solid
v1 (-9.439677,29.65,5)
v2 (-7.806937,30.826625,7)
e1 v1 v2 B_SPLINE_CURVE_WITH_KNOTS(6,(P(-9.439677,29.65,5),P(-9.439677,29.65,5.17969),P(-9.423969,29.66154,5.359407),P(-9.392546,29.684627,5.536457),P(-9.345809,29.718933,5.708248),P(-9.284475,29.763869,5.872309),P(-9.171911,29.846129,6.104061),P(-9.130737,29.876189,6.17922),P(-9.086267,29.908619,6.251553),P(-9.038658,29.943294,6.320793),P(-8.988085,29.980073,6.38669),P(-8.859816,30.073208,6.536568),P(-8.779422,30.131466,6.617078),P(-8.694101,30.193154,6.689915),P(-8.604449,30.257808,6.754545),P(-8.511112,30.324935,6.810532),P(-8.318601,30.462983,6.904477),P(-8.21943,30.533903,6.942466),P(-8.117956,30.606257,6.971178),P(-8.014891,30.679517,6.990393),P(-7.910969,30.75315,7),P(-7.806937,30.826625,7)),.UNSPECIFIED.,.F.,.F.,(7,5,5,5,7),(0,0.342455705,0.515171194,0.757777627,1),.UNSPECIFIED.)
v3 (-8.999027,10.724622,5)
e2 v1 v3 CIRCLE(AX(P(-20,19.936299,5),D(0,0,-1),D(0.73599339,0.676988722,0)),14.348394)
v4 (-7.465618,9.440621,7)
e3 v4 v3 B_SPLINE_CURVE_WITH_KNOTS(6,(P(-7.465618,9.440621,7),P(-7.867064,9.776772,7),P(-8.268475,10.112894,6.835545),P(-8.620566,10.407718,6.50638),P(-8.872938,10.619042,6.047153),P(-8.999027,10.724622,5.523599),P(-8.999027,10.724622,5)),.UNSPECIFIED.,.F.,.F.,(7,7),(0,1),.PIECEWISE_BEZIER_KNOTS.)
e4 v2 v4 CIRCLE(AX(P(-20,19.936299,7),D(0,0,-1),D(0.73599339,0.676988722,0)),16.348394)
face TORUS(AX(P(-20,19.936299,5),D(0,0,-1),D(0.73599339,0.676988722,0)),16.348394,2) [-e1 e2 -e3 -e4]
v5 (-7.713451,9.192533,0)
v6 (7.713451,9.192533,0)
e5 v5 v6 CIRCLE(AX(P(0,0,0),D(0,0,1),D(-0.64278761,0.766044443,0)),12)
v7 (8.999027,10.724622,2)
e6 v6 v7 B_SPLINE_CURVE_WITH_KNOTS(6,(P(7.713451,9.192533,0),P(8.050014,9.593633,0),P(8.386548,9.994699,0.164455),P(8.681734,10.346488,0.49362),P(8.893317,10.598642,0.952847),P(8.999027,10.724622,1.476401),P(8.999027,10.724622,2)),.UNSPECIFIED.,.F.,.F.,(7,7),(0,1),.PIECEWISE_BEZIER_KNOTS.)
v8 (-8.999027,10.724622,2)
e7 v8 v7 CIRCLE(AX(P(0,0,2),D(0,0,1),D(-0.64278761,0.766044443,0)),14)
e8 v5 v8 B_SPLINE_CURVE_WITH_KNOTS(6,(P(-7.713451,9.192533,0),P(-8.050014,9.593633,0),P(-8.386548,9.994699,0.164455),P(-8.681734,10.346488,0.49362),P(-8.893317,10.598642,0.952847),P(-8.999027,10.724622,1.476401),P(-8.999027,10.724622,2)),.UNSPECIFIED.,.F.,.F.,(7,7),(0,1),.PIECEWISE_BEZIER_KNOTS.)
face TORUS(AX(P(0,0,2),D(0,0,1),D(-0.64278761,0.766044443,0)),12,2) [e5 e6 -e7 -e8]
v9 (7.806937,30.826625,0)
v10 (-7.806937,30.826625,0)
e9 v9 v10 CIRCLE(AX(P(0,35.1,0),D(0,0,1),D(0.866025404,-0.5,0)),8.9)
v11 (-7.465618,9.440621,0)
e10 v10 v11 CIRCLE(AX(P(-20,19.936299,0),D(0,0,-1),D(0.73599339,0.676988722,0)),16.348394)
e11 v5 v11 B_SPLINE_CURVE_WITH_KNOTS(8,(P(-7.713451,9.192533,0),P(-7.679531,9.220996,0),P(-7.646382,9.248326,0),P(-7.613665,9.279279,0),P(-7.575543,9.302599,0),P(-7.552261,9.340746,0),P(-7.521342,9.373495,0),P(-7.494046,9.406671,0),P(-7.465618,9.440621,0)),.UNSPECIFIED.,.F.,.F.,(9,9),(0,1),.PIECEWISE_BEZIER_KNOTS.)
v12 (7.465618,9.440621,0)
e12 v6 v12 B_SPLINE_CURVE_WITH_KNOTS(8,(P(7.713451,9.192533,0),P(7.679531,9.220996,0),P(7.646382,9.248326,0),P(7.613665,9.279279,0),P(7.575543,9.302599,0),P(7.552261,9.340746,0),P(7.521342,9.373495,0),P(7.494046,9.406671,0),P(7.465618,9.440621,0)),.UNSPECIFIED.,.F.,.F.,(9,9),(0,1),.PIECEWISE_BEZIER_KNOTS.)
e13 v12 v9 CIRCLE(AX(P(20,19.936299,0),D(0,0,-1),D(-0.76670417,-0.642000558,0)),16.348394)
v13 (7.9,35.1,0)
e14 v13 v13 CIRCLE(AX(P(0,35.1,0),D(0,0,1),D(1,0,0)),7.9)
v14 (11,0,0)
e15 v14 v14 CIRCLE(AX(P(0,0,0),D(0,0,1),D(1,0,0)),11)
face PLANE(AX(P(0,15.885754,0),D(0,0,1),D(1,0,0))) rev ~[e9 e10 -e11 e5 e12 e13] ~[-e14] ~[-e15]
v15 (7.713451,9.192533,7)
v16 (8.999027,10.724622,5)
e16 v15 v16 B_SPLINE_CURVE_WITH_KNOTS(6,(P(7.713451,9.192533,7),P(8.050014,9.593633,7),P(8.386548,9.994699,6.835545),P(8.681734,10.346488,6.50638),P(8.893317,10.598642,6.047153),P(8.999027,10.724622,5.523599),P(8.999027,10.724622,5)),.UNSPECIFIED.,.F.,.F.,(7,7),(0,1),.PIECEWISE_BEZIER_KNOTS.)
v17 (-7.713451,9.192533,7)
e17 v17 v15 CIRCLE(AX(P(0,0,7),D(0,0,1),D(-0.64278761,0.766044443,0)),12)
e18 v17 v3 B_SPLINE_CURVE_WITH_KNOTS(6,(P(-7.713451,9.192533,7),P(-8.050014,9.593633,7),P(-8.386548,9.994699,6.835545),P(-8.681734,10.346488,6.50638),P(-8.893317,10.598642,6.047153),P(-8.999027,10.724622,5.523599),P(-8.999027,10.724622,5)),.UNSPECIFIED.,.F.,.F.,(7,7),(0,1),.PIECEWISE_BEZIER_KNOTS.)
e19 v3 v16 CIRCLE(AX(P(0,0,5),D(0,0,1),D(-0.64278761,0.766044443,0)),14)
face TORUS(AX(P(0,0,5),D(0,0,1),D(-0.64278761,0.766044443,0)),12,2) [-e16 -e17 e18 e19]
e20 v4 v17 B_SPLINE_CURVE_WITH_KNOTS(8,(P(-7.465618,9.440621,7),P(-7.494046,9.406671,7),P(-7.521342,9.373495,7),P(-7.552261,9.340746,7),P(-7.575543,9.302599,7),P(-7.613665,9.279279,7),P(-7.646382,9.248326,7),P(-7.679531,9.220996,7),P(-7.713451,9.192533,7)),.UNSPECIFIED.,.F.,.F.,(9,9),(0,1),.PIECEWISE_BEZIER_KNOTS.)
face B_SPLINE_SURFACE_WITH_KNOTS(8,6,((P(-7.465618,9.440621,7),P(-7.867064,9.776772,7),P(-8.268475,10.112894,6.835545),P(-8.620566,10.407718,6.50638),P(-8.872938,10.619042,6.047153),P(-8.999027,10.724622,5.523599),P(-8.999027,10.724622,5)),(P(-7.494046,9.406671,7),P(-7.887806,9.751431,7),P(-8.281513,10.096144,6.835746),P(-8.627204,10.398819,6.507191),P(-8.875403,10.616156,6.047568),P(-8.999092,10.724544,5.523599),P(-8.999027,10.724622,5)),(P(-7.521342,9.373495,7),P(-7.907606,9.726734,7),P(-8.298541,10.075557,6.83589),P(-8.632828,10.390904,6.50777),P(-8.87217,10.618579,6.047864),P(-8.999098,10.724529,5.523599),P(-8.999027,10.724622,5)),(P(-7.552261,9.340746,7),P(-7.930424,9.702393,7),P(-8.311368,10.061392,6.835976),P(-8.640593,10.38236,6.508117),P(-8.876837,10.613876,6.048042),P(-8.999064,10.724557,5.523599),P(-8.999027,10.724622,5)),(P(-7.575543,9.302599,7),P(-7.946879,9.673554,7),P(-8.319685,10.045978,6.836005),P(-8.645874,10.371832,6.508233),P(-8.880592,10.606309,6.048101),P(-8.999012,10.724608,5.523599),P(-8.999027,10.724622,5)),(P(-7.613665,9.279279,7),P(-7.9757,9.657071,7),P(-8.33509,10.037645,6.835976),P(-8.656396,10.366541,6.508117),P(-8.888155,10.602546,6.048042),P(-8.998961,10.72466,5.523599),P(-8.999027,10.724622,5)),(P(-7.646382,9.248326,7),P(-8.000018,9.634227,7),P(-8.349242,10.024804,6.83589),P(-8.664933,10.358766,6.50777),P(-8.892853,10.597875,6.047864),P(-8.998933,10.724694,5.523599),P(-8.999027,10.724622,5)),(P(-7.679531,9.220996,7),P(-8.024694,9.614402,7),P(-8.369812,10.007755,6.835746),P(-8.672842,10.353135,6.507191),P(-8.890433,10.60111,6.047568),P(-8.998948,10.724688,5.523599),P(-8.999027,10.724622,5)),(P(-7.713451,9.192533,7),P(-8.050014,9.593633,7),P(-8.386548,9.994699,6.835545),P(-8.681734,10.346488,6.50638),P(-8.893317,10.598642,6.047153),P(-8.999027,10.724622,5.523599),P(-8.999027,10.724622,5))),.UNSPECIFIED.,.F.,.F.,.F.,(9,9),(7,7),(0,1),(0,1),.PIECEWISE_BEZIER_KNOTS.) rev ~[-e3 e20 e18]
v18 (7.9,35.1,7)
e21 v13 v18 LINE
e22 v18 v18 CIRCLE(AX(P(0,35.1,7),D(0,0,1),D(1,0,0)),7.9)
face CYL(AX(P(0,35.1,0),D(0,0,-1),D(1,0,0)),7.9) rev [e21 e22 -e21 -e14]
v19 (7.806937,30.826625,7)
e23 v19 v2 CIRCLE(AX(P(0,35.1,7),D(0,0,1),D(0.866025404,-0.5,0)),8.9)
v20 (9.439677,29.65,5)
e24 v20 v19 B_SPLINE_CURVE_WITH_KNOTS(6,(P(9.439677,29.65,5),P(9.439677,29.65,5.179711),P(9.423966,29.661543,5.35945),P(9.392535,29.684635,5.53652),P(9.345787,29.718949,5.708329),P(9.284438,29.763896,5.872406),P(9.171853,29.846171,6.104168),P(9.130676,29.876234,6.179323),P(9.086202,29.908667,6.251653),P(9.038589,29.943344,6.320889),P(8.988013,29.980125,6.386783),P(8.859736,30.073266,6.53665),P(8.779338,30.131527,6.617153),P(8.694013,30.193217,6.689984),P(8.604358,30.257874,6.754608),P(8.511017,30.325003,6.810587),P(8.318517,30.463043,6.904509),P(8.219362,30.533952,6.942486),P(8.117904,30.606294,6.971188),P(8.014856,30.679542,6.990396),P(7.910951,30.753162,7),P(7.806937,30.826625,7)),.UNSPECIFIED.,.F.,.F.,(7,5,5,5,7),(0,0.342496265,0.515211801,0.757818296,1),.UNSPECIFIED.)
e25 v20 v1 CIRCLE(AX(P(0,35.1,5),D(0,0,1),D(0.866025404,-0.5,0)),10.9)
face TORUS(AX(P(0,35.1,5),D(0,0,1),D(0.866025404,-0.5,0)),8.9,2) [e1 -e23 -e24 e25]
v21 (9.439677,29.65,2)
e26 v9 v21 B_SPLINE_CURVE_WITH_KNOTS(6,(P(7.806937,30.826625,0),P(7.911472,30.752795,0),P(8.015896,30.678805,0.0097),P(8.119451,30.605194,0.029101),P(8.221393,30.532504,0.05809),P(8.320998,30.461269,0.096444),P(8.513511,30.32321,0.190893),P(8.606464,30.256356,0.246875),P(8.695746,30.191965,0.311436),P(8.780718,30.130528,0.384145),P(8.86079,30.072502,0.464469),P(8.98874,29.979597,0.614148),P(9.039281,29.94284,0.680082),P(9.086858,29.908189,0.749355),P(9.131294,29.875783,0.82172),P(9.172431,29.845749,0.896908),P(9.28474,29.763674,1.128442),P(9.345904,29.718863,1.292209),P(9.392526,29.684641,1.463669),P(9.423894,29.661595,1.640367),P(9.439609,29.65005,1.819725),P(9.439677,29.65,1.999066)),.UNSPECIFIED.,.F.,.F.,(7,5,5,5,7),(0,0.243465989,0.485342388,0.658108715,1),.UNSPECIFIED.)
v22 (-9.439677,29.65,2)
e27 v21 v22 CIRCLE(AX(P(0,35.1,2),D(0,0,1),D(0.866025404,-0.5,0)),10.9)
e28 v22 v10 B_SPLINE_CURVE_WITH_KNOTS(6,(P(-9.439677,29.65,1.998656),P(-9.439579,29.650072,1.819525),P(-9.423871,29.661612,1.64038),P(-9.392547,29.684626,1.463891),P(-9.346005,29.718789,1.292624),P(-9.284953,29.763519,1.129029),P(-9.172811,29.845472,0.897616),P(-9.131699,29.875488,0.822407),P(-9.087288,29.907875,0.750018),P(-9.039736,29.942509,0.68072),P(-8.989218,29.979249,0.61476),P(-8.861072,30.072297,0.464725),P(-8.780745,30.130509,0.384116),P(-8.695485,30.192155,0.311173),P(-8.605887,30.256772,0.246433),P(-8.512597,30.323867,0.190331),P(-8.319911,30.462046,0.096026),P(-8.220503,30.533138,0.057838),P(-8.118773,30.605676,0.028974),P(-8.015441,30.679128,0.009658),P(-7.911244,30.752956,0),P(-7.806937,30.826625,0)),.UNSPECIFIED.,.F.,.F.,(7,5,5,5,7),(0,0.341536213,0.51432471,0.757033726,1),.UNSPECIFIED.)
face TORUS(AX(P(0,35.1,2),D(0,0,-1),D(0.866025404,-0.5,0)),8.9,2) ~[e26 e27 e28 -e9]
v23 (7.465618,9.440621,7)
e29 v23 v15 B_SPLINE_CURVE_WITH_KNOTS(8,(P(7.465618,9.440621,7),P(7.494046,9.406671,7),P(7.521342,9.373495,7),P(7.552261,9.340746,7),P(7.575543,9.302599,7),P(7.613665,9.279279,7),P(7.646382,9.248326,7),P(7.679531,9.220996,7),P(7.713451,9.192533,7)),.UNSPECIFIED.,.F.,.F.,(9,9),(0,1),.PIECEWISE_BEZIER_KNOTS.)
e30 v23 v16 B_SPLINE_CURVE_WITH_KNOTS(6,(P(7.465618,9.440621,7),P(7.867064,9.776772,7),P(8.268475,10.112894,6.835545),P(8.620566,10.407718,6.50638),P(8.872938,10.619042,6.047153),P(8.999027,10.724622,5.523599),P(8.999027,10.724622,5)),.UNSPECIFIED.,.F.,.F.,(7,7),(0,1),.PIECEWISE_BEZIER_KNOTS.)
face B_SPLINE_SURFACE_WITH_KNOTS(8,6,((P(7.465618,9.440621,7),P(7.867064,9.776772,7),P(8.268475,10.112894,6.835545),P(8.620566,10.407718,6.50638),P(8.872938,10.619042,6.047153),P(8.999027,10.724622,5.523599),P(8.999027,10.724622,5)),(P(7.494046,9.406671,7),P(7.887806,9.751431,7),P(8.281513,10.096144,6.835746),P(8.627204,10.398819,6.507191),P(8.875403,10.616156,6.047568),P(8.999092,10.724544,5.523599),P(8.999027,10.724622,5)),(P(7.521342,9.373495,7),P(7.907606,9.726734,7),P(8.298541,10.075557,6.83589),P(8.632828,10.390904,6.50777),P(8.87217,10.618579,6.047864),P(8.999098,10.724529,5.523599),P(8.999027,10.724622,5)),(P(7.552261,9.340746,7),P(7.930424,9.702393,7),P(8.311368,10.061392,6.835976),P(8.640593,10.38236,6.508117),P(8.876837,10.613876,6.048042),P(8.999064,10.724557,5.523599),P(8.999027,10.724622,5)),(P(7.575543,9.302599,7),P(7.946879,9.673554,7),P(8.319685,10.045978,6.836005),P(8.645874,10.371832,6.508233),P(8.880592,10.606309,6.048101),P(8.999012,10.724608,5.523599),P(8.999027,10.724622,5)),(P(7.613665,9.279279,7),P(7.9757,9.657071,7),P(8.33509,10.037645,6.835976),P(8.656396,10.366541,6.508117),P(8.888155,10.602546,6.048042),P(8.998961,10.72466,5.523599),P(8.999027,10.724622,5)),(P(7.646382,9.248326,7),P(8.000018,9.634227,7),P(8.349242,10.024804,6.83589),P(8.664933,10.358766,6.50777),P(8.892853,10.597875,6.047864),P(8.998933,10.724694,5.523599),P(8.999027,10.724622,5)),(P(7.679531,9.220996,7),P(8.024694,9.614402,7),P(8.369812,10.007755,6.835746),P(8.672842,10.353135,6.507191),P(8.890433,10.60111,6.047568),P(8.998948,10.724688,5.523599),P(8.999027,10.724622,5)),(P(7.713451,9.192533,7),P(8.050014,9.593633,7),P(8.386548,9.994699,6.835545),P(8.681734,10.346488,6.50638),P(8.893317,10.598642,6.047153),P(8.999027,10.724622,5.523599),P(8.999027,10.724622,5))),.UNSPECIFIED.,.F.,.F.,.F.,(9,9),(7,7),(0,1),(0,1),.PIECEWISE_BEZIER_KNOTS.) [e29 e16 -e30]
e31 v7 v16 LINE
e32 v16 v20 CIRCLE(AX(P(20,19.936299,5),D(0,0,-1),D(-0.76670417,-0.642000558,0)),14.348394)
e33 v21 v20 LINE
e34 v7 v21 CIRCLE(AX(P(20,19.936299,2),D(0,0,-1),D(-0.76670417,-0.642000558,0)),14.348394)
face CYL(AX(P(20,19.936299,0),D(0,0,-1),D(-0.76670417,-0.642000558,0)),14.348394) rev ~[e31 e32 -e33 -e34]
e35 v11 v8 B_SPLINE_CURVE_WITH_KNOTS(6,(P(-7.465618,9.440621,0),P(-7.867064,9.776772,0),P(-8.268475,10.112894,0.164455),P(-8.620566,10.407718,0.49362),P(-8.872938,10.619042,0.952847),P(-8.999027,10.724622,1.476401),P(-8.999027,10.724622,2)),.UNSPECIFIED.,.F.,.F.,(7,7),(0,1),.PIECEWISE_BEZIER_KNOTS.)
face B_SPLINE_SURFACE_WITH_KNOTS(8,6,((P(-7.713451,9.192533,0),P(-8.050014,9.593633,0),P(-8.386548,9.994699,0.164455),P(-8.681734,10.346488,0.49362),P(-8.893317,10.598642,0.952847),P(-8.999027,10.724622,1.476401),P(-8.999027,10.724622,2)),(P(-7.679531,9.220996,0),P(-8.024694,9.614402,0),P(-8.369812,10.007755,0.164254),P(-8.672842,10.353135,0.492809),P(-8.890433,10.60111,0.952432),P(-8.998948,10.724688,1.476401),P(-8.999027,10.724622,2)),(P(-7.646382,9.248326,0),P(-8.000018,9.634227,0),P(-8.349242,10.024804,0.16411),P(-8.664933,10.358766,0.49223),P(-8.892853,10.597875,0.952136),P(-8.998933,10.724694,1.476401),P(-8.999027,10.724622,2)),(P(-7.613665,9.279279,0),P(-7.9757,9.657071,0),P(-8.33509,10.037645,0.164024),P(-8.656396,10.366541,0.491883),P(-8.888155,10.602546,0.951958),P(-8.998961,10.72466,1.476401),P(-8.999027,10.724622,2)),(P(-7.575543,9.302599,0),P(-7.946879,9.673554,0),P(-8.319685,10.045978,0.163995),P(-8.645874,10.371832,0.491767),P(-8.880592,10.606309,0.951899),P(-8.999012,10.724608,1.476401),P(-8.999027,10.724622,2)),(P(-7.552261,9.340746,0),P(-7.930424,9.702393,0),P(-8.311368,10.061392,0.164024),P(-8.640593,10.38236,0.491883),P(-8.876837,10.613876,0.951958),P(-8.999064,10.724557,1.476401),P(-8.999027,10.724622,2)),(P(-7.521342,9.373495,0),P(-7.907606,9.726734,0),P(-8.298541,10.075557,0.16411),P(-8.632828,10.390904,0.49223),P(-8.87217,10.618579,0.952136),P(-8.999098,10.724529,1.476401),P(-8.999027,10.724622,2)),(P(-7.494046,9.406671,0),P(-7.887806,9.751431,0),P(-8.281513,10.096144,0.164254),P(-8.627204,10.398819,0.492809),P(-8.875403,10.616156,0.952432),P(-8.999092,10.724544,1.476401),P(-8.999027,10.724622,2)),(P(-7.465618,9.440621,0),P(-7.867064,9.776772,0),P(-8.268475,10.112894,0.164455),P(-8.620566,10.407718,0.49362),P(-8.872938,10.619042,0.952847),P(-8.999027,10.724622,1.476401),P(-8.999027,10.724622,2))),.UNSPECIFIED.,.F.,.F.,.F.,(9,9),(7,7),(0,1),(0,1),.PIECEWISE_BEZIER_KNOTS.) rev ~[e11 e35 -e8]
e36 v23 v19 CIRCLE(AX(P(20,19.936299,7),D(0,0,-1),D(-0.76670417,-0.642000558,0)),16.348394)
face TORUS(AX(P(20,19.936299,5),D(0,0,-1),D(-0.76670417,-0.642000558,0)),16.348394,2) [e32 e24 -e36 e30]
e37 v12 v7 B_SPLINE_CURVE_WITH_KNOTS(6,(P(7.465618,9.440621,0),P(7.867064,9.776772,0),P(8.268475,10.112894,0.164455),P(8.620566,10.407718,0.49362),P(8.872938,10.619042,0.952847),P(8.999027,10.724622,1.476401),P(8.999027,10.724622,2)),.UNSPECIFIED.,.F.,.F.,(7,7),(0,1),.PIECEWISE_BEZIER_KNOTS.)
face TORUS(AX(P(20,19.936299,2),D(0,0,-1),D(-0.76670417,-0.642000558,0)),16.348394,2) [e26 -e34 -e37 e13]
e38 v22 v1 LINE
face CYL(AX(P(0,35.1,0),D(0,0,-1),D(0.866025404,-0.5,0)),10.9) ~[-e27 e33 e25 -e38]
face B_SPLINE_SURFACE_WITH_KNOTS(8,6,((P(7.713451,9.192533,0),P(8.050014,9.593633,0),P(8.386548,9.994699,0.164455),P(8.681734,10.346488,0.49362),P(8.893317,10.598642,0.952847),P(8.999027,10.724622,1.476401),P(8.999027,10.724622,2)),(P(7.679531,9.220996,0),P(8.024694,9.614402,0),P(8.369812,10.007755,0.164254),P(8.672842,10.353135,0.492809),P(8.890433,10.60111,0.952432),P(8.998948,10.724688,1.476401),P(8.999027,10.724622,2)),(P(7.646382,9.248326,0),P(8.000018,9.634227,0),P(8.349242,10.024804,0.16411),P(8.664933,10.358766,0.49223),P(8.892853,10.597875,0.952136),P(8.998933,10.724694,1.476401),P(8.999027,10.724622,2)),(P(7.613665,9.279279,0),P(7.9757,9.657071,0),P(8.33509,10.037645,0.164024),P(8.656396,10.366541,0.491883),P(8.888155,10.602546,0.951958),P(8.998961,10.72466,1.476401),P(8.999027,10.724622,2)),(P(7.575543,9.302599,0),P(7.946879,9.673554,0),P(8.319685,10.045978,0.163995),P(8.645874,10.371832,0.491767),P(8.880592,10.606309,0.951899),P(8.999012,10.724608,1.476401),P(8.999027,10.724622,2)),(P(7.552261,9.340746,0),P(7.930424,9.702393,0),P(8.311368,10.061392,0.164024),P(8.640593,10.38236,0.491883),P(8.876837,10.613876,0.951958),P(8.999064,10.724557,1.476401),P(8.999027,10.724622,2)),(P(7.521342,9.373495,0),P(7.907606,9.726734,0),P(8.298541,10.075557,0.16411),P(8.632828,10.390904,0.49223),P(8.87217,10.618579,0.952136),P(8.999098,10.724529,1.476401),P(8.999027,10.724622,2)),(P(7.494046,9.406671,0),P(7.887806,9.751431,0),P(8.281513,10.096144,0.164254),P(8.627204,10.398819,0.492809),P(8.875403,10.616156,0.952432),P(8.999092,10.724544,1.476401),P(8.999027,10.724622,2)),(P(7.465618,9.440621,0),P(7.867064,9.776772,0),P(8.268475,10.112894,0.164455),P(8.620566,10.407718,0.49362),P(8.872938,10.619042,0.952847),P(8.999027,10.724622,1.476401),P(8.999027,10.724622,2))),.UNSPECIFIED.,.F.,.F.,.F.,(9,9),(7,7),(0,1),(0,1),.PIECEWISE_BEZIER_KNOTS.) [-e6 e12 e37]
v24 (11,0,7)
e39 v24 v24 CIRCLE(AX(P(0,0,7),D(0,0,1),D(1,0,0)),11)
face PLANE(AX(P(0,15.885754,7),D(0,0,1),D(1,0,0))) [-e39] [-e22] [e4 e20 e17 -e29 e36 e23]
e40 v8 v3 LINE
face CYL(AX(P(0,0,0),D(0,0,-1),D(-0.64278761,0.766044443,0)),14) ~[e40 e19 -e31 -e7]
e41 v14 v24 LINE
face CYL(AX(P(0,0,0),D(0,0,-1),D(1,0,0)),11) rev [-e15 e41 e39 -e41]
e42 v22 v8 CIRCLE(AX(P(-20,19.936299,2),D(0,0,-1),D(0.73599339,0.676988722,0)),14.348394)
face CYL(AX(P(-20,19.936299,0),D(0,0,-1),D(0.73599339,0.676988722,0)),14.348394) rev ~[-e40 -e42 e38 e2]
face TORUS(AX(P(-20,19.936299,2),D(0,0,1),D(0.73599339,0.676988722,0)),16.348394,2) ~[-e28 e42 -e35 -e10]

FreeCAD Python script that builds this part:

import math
import FreeCAD as App
import Part
import Sketcher
from FreeCAD import Vector
Q = App.Units.Quantity


def edges_at(feature, points):
    """Names of the edges that pass closest to the given points."""
    edges = feature.Shape.Edges
    near = lambda p: min(range(len(edges)), key=lambda i: edges[i].distToShape(Part.Vertex(*p))[0])
    return sorted({f"Edge{near(p) + 1}" for p in points})

doc = App.newDocument("Part")
params = doc.addObject("Spreadsheet::Sheet", "Params")
for row, (alias, value) in enumerate([
    ("sketch1_diameter", "22 mm"),
    ("sketch1_radius", "14 mm"),
    ("sketch1_diameter2", "15.8 mm"),
    ("sketch1_radius2", "10.9 mm"),
    ("pad1_length", "7 mm"),
    ("fillet_radius", "2 mm"),
    ("fillet2_radius", "2 mm"),
], start=1):
    params.set(f"A{row}", alias)
    params.set(f"B{row}", "=" + value)
    params.setAlias(f"B{row}", alias)

body = doc.addObject("PartDesign::Body", "Body")

# Sketch on XY plane
sketch1 = body.newObject("Sketcher::SketchObject", "Sketch")
sketch1.AttachmentSupport = (doc.getObject("XY_Plane"), [""])
sketch1.MapMode = "FlatFace"
sketch1.addGeometry(Part.ArcOfCircle(Part.Circle(Vector(-20, 19.936299, 0), Vector(0, 0, 1), 14.348394), math.radians(-39.941158), math.radians(42.608777)), False)
sketch1.addGeometry(Part.ArcOfCircle(Part.Circle(Vector(0, 0, 0), Vector(0, 0, 1), 14), math.radians(130), math.radians(410)), False)
sketch1.addGeometry(Part.ArcOfCircle(Part.Circle(Vector(20, 19.936299, 0), Vector(0, 0, 1), 14.348394), math.radians(137.391223), math.radians(219.941158)), False)
sketch1.addGeometry(Part.ArcOfCircle(Part.Circle(Vector(0, 35.1, 0), Vector(0, 0, 1), 10.9), math.radians(-30), math.radians(210)), False)
sketch1.addGeometry(Part.Circle(Vector(0, 0, 0), Vector(0, 0, 1), 11), False)
sketch1.addGeometry(Part.Circle(Vector(0, 35.1, 0), Vector(0, 0, 1), 7.9), False)
sketch1.addConstraint(Sketcher.Constraint("Coincident", 0, 1, 1, 1))
sketch1.addConstraint(Sketcher.Constraint("Coincident", 1, 2, 2, 2))
sketch1.addConstraint(Sketcher.Constraint("Coincident", 2, 1, 3, 1))
sketch1.addConstraint(Sketcher.Constraint("Coincident", 3, 2, 0, 2))
sketch1.addConstraint(Sketcher.Constraint("Coincident", 1, 3, -1, 1))
sketch1.addConstraint(Sketcher.Constraint("Coincident", 4, 3, -1, 1))
sketch1.addConstraint(Sketcher.Constraint("Coincident", 5, 3, 3, 3))
sketch1.addConstraint(Sketcher.Constraint("Equal", 0, 2))
sketch1.addConstraint(Sketcher.Constraint("Symmetric", 0, 3, 2, 3, -2))
sketch1.addConstraint(Sketcher.Constraint("PointOnObject", 3, 3, -2))
sketch1.addConstraint(Sketcher.Constraint("Diameter", 4, Q("22 mm")))
sketch1.addConstraint(Sketcher.Constraint("Radius", 1, Q("14 mm")))
sketch1.addConstraint(Sketcher.Constraint("Diameter", 5, Q("15.8 mm")))
sketch1.addConstraint(Sketcher.Constraint("Radius", 3, Q("10.9 mm")))
sketch1.addConstraint(Sketcher.Constraint("DistanceX", 0, 3, -1, 1, Q("20 mm")))
sketch1.addConstraint(Sketcher.Constraint("DistanceY", -1, 1, 3, 3, Q("35.1 mm")))
sketch1.addConstraint(Sketcher.Constraint("DistanceY", -1, 1, 2, 1, Q("29.65 mm")))
sketch1.addConstraint(Sketcher.Constraint("Radius", 0, Q("14.348394 mm")))
sketch1.setExpression("Constraints[10]", "Params.sketch1_diameter")
sketch1.setExpression("Constraints[11]", "Params.sketch1_radius")
sketch1.setExpression("Constraints[12]", "Params.sketch1_diameter2")
sketch1.setExpression("Constraints[13]", "Params.sketch1_radius2")
pad1 = body.newObject("PartDesign::Pad", "Pad")
pad1.Profile = sketch1
pad1.setExpression("Length", "Params.pad1_length")
doc.recompute()

fillet = body.newObject("PartDesign::Fillet", "Fillet")
fillet.Base = (pad1, edges_at(pad1, [
    (-5.655, 20.27, 7),
    (0, 46, 7),
    (5.655, 20.27, 7),
    (0, -14, 7),
]))
fillet.setExpression("Radius", "Params.fillet_radius")
doc.recompute()

fillet2 = body.newObject("PartDesign::Fillet", "Fillet001")
fillet2.Base = (fillet, edges_at(fillet, [
    (0, -14, 0),
    (5.655, 20.27, 0),
    (0, 46, 0),
    (-5.655, 20.27, 0),
]))
fillet2.setExpression("Radius", "Params.fillet2_radius")

doc.recompute()
